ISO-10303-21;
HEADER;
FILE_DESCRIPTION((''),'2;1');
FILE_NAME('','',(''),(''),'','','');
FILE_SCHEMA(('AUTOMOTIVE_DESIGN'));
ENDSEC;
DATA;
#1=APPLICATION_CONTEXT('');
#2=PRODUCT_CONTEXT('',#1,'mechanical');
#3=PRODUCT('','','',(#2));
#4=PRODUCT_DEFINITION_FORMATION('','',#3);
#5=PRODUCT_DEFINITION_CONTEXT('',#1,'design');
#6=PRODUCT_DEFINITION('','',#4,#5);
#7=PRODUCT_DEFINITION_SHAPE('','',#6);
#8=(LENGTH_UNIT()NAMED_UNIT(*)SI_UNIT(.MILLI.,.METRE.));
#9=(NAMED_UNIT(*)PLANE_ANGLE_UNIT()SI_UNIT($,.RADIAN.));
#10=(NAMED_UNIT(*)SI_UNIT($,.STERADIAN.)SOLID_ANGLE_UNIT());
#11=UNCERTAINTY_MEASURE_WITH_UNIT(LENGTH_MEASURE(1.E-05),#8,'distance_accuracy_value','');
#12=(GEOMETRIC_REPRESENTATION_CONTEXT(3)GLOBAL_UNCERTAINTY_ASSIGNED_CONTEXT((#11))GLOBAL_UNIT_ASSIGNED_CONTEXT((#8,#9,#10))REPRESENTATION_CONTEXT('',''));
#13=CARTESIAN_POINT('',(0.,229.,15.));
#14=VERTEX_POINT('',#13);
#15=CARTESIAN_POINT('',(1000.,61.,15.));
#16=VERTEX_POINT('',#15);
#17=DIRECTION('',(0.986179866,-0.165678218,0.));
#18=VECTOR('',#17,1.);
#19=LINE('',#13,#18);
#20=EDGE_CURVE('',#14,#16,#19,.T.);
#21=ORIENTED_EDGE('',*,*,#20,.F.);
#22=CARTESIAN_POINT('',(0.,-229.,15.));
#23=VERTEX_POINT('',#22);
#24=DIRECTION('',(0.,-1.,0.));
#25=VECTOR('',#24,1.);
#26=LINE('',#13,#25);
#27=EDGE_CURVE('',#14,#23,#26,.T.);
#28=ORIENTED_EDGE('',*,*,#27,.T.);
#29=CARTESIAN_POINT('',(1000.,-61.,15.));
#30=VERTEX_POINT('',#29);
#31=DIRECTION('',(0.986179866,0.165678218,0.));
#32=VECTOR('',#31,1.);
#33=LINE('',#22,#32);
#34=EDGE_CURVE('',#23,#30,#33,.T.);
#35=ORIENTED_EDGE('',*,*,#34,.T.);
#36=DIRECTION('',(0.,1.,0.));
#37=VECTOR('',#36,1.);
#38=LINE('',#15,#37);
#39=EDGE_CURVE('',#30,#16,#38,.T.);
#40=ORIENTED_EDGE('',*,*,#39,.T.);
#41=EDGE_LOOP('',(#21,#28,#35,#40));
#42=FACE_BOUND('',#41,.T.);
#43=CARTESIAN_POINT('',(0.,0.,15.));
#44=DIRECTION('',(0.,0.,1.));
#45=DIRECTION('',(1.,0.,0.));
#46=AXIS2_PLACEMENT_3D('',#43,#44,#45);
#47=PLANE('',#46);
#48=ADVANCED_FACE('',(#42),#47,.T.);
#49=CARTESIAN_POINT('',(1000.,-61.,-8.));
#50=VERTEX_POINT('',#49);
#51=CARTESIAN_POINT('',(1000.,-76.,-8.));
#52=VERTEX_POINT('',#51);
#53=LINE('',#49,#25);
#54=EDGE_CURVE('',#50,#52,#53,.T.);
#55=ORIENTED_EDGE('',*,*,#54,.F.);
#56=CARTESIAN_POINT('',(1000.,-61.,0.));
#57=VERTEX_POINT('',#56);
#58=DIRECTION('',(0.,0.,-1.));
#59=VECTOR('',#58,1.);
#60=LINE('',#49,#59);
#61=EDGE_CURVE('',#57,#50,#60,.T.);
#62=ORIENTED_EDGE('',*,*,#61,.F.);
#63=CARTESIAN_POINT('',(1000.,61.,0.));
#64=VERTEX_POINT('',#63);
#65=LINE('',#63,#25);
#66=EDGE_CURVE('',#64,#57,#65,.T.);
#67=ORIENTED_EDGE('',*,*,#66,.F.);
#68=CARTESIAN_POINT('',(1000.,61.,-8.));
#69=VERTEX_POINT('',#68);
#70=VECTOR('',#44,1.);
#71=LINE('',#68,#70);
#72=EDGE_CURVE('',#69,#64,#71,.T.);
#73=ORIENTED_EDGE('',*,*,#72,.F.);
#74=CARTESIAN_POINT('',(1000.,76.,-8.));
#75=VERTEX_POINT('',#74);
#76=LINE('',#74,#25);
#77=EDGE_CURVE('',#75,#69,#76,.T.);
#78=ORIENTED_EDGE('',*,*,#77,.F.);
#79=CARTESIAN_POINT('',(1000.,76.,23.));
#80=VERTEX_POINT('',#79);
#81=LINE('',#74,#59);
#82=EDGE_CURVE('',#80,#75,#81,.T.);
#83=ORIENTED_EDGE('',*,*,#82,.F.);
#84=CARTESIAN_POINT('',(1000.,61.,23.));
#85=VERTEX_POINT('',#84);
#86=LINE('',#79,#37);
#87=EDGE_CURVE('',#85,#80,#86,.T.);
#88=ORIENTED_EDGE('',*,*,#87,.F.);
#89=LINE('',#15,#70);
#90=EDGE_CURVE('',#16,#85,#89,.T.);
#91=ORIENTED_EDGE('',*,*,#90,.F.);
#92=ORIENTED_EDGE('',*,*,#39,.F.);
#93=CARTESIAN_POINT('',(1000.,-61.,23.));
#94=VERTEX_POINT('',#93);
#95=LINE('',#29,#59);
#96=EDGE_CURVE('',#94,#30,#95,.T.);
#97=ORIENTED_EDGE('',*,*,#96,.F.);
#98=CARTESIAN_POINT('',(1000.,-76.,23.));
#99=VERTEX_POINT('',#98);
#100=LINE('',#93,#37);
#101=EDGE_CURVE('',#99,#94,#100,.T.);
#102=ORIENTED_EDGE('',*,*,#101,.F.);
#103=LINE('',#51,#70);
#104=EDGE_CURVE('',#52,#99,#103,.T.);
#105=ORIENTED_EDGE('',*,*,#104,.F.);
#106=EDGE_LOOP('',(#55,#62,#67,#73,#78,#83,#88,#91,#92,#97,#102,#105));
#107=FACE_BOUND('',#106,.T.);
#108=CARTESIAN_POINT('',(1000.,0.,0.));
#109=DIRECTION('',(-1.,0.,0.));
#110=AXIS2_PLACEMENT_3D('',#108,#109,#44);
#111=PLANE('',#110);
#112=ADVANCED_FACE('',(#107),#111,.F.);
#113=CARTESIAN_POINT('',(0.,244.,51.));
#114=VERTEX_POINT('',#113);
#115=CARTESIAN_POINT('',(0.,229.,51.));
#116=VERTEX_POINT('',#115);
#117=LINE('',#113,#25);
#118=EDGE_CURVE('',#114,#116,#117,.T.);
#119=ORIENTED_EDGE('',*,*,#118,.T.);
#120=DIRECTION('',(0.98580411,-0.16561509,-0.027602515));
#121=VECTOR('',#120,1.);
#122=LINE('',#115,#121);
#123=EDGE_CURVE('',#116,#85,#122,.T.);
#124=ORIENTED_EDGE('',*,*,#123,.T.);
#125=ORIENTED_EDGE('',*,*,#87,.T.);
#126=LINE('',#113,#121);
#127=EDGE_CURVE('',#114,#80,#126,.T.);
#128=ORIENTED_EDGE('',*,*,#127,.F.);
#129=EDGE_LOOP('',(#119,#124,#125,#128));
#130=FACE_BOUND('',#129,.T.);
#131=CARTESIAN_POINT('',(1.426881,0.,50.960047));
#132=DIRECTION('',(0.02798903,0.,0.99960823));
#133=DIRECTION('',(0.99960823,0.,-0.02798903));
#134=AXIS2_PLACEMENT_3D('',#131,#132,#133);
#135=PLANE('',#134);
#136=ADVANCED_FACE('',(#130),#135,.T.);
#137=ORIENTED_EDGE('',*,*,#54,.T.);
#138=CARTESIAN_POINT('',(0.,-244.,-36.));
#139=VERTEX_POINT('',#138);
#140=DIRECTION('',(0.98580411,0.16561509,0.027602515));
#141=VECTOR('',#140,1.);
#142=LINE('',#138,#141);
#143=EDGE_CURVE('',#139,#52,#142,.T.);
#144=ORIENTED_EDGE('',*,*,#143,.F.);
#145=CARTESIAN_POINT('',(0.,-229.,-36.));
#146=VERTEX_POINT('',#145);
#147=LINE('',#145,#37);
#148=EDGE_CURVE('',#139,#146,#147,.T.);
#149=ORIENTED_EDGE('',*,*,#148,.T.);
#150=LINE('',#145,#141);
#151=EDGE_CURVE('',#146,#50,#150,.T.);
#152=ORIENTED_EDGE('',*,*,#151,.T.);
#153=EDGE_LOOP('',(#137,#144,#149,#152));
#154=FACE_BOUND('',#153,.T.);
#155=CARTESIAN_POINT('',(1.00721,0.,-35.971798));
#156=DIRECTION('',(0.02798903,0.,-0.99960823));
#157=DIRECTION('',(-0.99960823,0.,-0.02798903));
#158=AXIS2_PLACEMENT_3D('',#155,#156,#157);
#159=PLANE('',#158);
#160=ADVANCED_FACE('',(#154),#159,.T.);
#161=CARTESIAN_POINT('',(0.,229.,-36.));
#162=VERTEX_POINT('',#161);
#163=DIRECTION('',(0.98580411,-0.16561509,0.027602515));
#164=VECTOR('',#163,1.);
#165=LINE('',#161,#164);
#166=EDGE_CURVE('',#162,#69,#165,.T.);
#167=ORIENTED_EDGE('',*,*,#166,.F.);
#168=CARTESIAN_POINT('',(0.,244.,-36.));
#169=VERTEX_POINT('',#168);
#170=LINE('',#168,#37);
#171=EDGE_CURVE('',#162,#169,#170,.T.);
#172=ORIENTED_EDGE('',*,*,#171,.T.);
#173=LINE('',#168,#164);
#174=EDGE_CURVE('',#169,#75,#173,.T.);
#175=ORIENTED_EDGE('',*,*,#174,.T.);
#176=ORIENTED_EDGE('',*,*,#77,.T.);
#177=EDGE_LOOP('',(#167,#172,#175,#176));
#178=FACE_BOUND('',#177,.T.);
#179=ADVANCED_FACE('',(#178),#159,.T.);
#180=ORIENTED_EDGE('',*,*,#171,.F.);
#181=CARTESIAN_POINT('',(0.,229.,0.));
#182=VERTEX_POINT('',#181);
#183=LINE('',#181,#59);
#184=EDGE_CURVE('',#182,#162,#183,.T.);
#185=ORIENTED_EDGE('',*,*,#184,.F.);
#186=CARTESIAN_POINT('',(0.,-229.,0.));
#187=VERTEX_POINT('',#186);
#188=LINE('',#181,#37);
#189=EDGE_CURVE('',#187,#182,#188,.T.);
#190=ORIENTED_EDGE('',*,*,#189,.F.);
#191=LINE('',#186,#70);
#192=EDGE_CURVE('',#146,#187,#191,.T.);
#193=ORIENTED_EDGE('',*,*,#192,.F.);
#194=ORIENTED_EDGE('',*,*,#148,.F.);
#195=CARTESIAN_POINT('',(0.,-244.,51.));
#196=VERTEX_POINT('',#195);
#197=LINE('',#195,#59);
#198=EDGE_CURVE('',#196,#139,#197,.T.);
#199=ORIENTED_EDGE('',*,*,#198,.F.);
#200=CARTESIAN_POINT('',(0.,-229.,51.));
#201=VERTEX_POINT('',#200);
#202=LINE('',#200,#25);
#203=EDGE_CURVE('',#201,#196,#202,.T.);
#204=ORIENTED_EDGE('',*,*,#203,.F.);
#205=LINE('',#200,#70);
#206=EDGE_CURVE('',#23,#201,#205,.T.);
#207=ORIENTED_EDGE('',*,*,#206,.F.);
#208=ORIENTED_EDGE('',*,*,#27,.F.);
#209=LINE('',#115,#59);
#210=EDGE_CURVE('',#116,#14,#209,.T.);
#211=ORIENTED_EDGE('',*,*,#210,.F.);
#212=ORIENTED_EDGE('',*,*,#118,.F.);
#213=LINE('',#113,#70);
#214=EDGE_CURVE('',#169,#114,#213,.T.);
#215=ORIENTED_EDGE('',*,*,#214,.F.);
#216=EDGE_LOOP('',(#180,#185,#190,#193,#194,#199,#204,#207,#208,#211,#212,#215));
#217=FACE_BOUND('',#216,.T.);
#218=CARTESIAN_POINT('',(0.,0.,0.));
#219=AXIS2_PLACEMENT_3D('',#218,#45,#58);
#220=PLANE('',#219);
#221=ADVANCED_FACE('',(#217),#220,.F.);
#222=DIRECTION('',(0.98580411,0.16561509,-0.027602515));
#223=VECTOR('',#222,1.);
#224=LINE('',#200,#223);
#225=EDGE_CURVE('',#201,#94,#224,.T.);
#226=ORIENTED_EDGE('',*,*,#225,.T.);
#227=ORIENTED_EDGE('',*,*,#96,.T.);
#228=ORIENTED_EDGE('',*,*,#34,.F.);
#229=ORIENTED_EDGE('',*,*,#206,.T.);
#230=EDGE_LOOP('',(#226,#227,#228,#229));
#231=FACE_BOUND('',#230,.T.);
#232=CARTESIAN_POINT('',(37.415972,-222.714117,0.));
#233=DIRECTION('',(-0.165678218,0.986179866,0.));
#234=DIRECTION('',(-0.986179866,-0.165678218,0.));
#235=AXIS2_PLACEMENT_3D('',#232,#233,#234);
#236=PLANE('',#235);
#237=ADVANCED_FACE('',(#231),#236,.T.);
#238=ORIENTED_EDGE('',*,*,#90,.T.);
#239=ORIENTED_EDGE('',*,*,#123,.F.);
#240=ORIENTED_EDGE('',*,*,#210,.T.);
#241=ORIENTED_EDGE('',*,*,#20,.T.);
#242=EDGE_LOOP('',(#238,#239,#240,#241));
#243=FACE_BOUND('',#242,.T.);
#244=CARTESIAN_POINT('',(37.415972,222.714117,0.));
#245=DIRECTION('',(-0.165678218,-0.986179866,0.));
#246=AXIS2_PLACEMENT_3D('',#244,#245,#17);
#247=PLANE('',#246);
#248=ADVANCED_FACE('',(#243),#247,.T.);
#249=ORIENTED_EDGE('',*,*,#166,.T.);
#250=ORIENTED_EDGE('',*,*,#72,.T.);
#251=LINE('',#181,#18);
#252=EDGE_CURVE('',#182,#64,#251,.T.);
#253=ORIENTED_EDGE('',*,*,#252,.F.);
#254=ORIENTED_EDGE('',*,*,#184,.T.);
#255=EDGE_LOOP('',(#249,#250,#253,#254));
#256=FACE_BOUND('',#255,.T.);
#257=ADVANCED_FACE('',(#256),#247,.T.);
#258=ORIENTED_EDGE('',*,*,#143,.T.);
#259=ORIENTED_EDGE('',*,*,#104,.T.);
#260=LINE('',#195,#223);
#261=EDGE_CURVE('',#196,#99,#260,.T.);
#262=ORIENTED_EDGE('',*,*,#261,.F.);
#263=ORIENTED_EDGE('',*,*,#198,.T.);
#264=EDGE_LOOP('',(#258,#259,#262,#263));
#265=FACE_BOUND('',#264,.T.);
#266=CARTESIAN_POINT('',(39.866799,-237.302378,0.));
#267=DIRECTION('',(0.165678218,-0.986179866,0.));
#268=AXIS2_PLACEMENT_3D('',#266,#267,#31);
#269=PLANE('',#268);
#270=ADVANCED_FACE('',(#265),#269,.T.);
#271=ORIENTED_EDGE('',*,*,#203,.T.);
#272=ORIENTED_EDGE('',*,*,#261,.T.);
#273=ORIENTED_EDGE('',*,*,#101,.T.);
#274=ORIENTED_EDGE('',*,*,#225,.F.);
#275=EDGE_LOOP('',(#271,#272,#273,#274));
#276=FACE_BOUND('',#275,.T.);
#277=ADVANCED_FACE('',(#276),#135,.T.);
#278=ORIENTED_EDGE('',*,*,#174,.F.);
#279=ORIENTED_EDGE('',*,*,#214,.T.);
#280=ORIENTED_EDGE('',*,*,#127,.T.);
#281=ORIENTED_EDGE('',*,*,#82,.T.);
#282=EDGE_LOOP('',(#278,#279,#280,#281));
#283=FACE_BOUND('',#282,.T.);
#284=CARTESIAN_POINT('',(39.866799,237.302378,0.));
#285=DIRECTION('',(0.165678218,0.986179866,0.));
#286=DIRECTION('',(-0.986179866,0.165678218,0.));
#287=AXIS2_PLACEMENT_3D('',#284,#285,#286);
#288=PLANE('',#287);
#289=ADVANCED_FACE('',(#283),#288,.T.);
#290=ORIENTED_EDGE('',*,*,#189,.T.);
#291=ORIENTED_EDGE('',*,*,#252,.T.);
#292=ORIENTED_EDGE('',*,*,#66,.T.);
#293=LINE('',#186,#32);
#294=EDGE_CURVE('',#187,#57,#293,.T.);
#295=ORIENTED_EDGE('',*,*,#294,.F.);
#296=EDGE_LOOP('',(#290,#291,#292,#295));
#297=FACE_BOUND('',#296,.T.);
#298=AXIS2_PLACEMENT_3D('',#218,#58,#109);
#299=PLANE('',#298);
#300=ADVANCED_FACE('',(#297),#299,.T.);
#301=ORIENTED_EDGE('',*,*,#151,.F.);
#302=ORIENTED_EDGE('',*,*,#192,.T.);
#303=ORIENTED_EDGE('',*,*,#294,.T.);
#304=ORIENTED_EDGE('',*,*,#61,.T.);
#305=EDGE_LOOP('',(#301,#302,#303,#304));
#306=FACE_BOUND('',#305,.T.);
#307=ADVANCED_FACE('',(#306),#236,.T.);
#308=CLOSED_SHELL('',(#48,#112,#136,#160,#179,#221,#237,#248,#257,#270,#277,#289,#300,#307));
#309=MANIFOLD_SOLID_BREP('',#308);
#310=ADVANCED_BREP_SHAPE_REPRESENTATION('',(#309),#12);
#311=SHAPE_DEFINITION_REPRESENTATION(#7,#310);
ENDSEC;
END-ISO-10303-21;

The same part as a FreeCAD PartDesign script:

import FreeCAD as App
import Part
import Sketcher

V = App.Vector
Q = App.Units.Quantity


def add_polygon(sketch, points):
    """Adds a closed chain of lines whose ends are joined by coincident constraints."""
    first, n = sketch.GeometryCount, len(points)
    for a, b in zip(points, points[1:] + points[:1]):
        sketch.addGeometry(Part.LineSegment(App.Vector(*a, 0), App.Vector(*b, 0)), False)
    for i in range(n):
        sketch.addConstraint(Sketcher.Constraint("Coincident", first + i, 2, first + (i + 1) % n, 1))

doc = App.newDocument("Part")
params = doc.addObject("Spreadsheet::Sheet", "Params")
for row, (alias, value) in enumerate([
    ("sketch1_width", "15 mm"),
    ("sketch1_width2", "458 mm"),
    ("sketch1_height", "87 mm"),
    ("sketch1_height2", "36 mm"),
    ("sketch2_width", "15 mm"),
    ("sketch2_width2", "122 mm"),
    ("sketch2_height", "31 mm"),
    ("sketch2_height2", "8 mm"),
], start=1):
    params.set(f"A{row}", alias)
    params.set(f"B{row}", "=" + value)
    params.setAlias(f"B{row}", alias)

body = doc.addObject("PartDesign::Body", "Body")

# Sketch on YZ plane
sketch1 = body.newObject("Sketcher::SketchObject", "Sketch")
sketch1.AttachmentSupport = (doc.getObject("YZ_Plane"), [""])
sketch1.MapMode = "FlatFace"
add_polygon(sketch1, [(244, -36), (244, 51), (229, 51), (229, 15), (-229, 15), (-229, 51), (-244, 51), (-244, -36), (-229, -36), (-229, 0), (229, 0), (229, -36)])  # lines 0-11
sketch1.addConstraint(Sketcher.Constraint("Vertical", 0))
sketch1.addConstraint(Sketcher.Constraint("Horizontal", 1))
sketch1.addConstraint(Sketcher.Constraint("Vertical", 2))
sketch1.addConstraint(Sketcher.Constraint("Horizontal", 3))
sketch1.addConstraint(Sketcher.Constraint("Vertical", 4))
sketch1.addConstraint(Sketcher.Constraint("Horizontal", 5))
sketch1.addConstraint(Sketcher.Constraint("Vertical", 6))
sketch1.addConstraint(Sketcher.Constraint("Horizontal", 7))
sketch1.addConstraint(Sketcher.Constraint("Vertical", 8))
sketch1.addConstraint(Sketcher.Constraint("Horizontal", 9))
sketch1.addConstraint(Sketcher.Constraint("Vertical", 10))
sketch1.addConstraint(Sketcher.Constraint("Horizontal", 11))
sketch1.addConstraint(Sketcher.Constraint("Symmetric", 8, 2, 9, 2, -1, 1))
sketch1.addConstraint(Sketcher.Constraint("Symmetric", 1, 2, 4, 2, -2))
sketch1.addConstraint(Sketcher.Constraint("Symmetric", 6, 2, 11, 2, -2))
sketch1.addConstraint(Sketcher.Constraint("Vertical", 4, 2, 7, 2))
sketch1.addConstraint(Sketcher.Constraint("Equal", 4, 8))
sketch1.addConstraint(Sketcher.Constraint("DistanceX", 1, 2, 1, 1, Q("15 mm")))
sketch1.addConstraint(Sketcher.Constraint("DistanceX", 3, 2, 3, 1, Q("458 mm")))
sketch1.addConstraint(Sketcher.Constraint("DistanceY", 0, 1, 0, 2, Q("87 mm")))
sketch1.addConstraint(Sketcher.Constraint("DistanceY", 2, 2, 2, 1, Q("36 mm")))
sketch1.setExpression("Constraints[29]", "Params.sketch1_width")
sketch1.setExpression("Constraints[30]", "Params.sketch1_width2")
sketch1.setExpression("Constraints[31]", "Params.sketch1_height")
sketch1.setExpression("Constraints[32]", "Params.sketch1_height2")

# Sketch on YZ plane
sketch2 = body.newObject("Sketcher::SketchObject", "Sketch001")
sketch2.AttachmentSupport = (doc.getObject("YZ_Plane"), [""])
sketch2.MapMode = "FlatFace"
sketch2.AttachmentOffset = App.Placement(V(0, 0, 1000), App.Rotation())
add_polygon(sketch2, [(76, 23), (76, -8), (61, -8), (61, 0), (-61, 0), (-61, -8), (-76, -8), (-76, 23), (-61, 23), (-61, 15), (61, 15), (61, 23)])  # lines 0-11
sketch2.addConstraint(Sketcher.Constraint("Vertical", 0))
sketch2.addConstraint(Sketcher.Constraint("Horizontal", 1))
sketch2.addConstraint(Sketcher.Constraint("Vertical", 2))
sketch2.addConstraint(Sketcher.Constraint("Horizontal", 3))
sketch2.addConstraint(Sketcher.Constraint("Vertical", 4))
sketch2.addConstraint(Sketcher.Constraint("Horizontal", 5))
sketch2.addConstraint(Sketcher.Constraint("Vertical", 6))
sketch2.addConstraint(Sketcher.Constraint("Horizontal", 7))
sketch2.addConstraint(Sketcher.Constraint("Vertical", 8))
sketch2.addConstraint(Sketcher.Constraint("Horizontal", 9))
sketch2.addConstraint(Sketcher.Constraint("Vertical", 10))
sketch2.addConstraint(Sketcher.Constraint("Horizontal", 11))
sketch2.addConstraint(Sketcher.Constraint("Symmetric", 2, 2, 3, 2, -1, 1))
sketch2.addConstraint(Sketcher.Constraint("Symmetric", 0, 2, 5, 2, -2))
sketch2.addConstraint(Sketcher.Constraint("Symmetric", 7, 2, 10, 2, -2))
sketch2.addConstraint(Sketcher.Constraint("Vertical", 4, 2, 7, 2))
sketch2.addConstraint(Sketcher.Constraint("Equal", 4, 8))
sketch2.addConstraint(Sketcher.Constraint("DistanceX", 1, 2, 1, 1, Q("15 mm")))
sketch2.addConstraint(Sketcher.Constraint("DistanceX", 3, 2, 3, 1, Q("122 mm")))
sketch2.addConstraint(Sketcher.Constraint("DistanceY", 0, 2, 0, 1, Q("31 mm")))
sketch2.addConstraint(Sketcher.Constraint("DistanceY", 2, 1, 2, 2, Q("8 mm")))
sketch2.setExpression("Constraints[29]", "Params.sketch2_width")
sketch2.setExpression("Constraints[30]", "Params.sketch2_width2")
sketch2.setExpression("Constraints[31]", "Params.sketch2_height")
sketch2.setExpression("Constraints[32]", "Params.sketch2_height2")

additiveloft = body.newObject("PartDesign::AdditiveLoft", "AdditiveLoft")
additiveloft.Profile = sketch1
additiveloft.Sections = [sketch2]

doc.recompute()
